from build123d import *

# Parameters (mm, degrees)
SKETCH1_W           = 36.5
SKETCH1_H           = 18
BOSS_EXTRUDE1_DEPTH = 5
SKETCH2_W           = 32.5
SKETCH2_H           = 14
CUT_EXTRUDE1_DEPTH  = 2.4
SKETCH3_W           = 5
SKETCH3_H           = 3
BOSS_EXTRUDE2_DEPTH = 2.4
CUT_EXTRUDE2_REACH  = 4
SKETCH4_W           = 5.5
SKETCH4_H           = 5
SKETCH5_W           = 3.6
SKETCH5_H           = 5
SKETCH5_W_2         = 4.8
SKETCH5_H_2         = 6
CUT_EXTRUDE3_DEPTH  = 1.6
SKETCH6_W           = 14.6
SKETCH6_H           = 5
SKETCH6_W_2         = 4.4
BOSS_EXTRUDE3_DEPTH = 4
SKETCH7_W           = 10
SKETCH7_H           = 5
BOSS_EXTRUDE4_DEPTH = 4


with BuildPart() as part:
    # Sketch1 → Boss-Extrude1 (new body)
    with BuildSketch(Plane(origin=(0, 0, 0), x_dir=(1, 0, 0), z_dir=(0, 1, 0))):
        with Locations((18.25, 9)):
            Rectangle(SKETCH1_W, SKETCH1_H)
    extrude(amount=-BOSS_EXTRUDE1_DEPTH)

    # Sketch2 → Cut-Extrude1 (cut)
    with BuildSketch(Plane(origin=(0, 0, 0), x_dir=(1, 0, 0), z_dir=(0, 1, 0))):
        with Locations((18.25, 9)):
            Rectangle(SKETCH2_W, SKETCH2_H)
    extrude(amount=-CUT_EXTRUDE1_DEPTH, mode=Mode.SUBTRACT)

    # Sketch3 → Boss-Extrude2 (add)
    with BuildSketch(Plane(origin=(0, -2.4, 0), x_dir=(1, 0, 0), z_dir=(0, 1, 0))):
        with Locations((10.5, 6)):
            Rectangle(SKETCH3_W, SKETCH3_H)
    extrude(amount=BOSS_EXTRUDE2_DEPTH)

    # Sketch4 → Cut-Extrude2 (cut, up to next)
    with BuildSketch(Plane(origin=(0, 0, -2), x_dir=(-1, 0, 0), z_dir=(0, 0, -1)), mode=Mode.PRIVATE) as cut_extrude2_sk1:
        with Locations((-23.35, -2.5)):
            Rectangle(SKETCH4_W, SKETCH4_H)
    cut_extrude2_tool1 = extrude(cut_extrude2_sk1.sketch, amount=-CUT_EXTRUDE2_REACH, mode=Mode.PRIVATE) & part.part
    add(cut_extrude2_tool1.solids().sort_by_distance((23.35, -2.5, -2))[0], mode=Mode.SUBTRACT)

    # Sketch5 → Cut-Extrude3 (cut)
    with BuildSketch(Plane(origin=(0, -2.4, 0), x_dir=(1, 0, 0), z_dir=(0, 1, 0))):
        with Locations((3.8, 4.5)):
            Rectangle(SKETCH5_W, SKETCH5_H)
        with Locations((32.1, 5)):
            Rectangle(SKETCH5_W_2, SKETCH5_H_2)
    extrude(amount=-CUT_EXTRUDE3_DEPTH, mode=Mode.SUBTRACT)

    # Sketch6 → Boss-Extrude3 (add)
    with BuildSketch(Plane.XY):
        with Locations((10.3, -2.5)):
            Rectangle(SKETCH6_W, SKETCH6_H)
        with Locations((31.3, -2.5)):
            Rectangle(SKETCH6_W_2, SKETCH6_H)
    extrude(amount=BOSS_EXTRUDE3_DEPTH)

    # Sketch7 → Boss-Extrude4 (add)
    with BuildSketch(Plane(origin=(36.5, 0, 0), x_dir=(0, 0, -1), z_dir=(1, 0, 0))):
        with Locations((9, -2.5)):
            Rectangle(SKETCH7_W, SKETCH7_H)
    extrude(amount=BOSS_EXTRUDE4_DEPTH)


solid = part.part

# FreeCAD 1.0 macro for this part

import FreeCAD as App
import Part
import Sketcher

V = App.Vector
Q = App.Units.Quantity


def add_polygon(sketch, points):
    """Adds a closed chain of lines whose ends are joined by coincident constraints."""
    first, n = sketch.GeometryCount, len(points)
    for a, b in zip(points, points[1:] + points[:1]):
        sketch.addGeometry(Part.LineSegment(App.Vector(*a, 0), App.Vector(*b, 0)), False)
    for i in range(n):
        sketch.addConstraint(Sketcher.Constraint("Coincident", first + i, 2, first + (i + 1) % n, 1))

doc = App.newDocument("Part")
body = doc.addObject("PartDesign::Body", "Body")

# Sketch on XZ plane
sketch1 = body.newObject("Sketcher::SketchObject", "Sketch")
sketch1.AttachmentSupport = (doc.getObject("XZ_Plane"), [""])
sketch1.MapMode = "FlatFace"
add_polygon(sketch1, [(0, -18), (0, 0), (36.5, 0), (36.5, -18)])  # lines 0-3
sketch1.addConstraint([
    Sketcher.Constraint("Vertical", 0),
    Sketcher.Constraint("Horizontal", 1),
    Sketcher.Constraint("Vertical", 2),
    Sketcher.Constraint("Horizontal", 3),
    Sketcher.Constraint("Coincident", 0, 2, -1, 1),
    Sketcher.Constraint("DistanceY", 0, 1, 0, 2, Q("18 mm")),
    Sketcher.Constraint("DistanceX", 1, 1, 1, 2, Q("36.5 mm")),
])
pad1 = body.newObject("PartDesign::Pad", "Pad")
pad1.Profile = sketch1
pad1.Length = 5

# Sketch on XZ plane
sketch2 = body.newObject("Sketcher::SketchObject", "Sketch001")
sketch2.AttachmentSupport = (doc.getObject("XZ_Plane"), [""])
sketch2.MapMode = "FlatFace"
add_polygon(sketch2, [(2, -16), (2, -2), (34.5, -2), (34.5, -16)])  # lines 0-3
sketch2.addConstraint([
    Sketcher.Constraint("Vertical", 0),
    Sketcher.Constraint("Horizontal", 1),
    Sketcher.Constraint("Vertical", 2),
    Sketcher.Constraint("Horizontal", 3),
    Sketcher.Constraint("DistanceY", 0, 1, 0, 2, Q("14 mm")),
    Sketcher.Constraint("DistanceX", 1, 1, 1, 2, Q("32.5 mm")),
    Sketcher.Constraint("DistanceX", -1, 1, 0, 2, Q("2 mm")),
    Sketcher.Constraint("DistanceY", 0, 2, -1, 1, Q("2 mm")),
])
pocket1 = body.newObject("PartDesign::Pocket", "Pocket")
pocket1.Profile = sketch2
pocket1.Length = 2.4
pocket1.Reversed = True

# Sketch on XZ plane
sketch3 = body.newObject("Sketcher::SketchObject", "Sketch002")
sketch3.AttachmentSupport = (doc.getObject("XZ_Plane"), [""])
sketch3.MapMode = "FlatFace"
sketch3.AttachmentOffset = App.Placement(V(0, 0, 2.4), App.Rotation())
add_polygon(sketch3, [(8, -7.5), (8, -4.5), (13, -4.5), (13, -7.5)])  # lines 0-3
sketch3.addConstraint([
    Sketcher.Constraint("Vertical", 0),
    Sketcher.Constraint("Horizontal", 1),
    Sketcher.Constraint("Vertical", 2),
    Sketcher.Constraint("Horizontal", 3),
    Sketcher.Constraint("DistanceX", 1, 1, 1, 2, Q("5 mm")),
    Sketcher.Constraint("DistanceY", 0, 1, 0, 2, Q("3 mm")),
    Sketcher.Constraint("DistanceX", -1, 1, 0, 2, Q("8 mm")),
    Sketcher.Constraint("DistanceY", 0, 2, -1, 1, Q("4.5 mm")),
])
pad2 = body.newObject("PartDesign::Pad", "Pad001")
pad2.Profile = sketch3
pad2.Length = 2.4
pad2.Reversed = True

# Sketch on XY plane
sketch4 = body.newObject("Sketcher::SketchObject", "Sketch003")
sketch4.AttachmentSupport = (doc.getObject("XY_Plane"), [""])
sketch4.MapMode = "FlatFace"
sketch4.AttachmentOffset = App.Placement(V(0, 0, -2), App.Rotation())
add_polygon(sketch4, [(26.1, 0), (26.1, -5), (20.6, -5), (20.6, 0)])  # lines 0-3
sketch4.addConstraint([
    Sketcher.Constraint("Vertical", 0),
    Sketcher.Constraint("Horizontal", 1),
    Sketcher.Constraint("Vertical", 2),
    Sketcher.Constraint("Horizontal", 3),
    Sketcher.Constraint("PointOnObject", 2, 2, -1),
    Sketcher.Constraint("DistanceY", 0, 2, 0, 1, Q("5 mm")),
    Sketcher.Constraint("DistanceX", 1, 2, 1, 1, Q("5.5 mm")),
    Sketcher.Constraint("DistanceX", -1, 1, 0, 2, Q("26.1 mm")),
])
pocket2 = body.newObject("PartDesign::Pocket", "Pocket001")
pocket2.Profile = sketch4
pocket2.Type = "UpToFirst"
pocket2.Reversed = True

# Sketch on XZ plane
sketch5 = body.newObject("Sketcher::SketchObject", "Sketch004")
sketch5.AttachmentSupport = (doc.getObject("XZ_Plane"), [""])
sketch5.MapMode = "FlatFace"
sketch5.AttachmentOffset = App.Placement(V(0, 0, 2.4), App.Rotation())
add_polygon(sketch5, [(2, -7), (2, -2), (5.6, -2), (5.6, -7)])  # lines 0-3
add_polygon(sketch5, [(29.7, -8), (29.7, -2), (34.5, -2), (34.5, -8)])  # lines 4-7
sketch5.addConstraint([
    Sketcher.Constraint("Vertical", 0),
    Sketcher.Constraint("Horizontal", 1),
    Sketcher.Constraint("Vertical", 2),
    Sketcher.Constraint("Horizontal", 3),
    Sketcher.Constraint("Vertical", 4),
    Sketcher.Constraint("Horizontal", 5),
    Sketcher.Constraint("Vertical", 6),
    Sketcher.Constraint("Horizontal", 7),
    Sketcher.Constraint("Horizontal", 1, 2, 4, 2),
    Sketcher.Constraint("DistanceY", 0, 1, 0, 2, Q("5 mm")),
    Sketcher.Constraint("DistanceY", 4, 1, 4, 2, Q("6 mm")),
    Sketcher.Constraint("DistanceX", 1, 1, 1, 2, Q("3.6 mm")),
    Sketcher.Constraint("DistanceX", 5, 1, 5, 2, Q("4.8 mm")),
    Sketcher.Constraint("DistanceX", -1, 1, 0, 2, Q("2 mm")),
    Sketcher.Constraint("DistanceY", 0, 2, -1, 1, Q("2 mm")),
    Sketcher.Constraint("DistanceX", -1, 1, 4, 2, Q("29.7 mm")),
])
pocket3 = body.newObject("PartDesign::Pocket", "Pocket002")
pocket3.Profile = sketch5
pocket3.Length = 1.6
pocket3.Reversed = True

# Sketch on XY plane
sketch6 = body.newObject("Sketcher::SketchObject", "Sketch005")
sketch6.AttachmentSupport = (doc.getObject("XY_Plane"), [""])
sketch6.MapMode = "FlatFace"
add_polygon(sketch6, [(3, 0), (3, -5), (17.6, -5), (17.6, 0)])  # lines 0-3
add_polygon(sketch6, [(29.1, 0), (29.1, -5), (33.5, -5), (33.5, 0)])  # lines 4-7
sketch6.addConstraint([
    Sketcher.Constraint("Vertical", 0),
    Sketcher.Constraint("Horizontal", 1),
    Sketcher.Constraint("Vertical", 2),
    Sketcher.Constraint("Horizontal", 3),
    Sketcher.Constraint("Vertical", 4),
    Sketcher.Constraint("Horizontal", 5),
    Sketcher.Constraint("Vertical", 6),
    Sketcher.Constraint("Horizontal", 7),
    Sketcher.Constraint("PointOnObject", 2, 2, -1),
    Sketcher.Constraint("PointOnObject", 6, 2, -1),
    Sketcher.Constraint("Horizontal", 1, 2, 4, 2),
    Sketcher.Constraint("DistanceY", 0, 2, 0, 1, Q("5 mm")),
    Sketcher.Constraint("DistanceX", 1, 1, 1, 2, Q("14.6 mm")),
    Sketcher.Constraint("DistanceX", 5, 1, 5, 2, Q("4.4 mm")),
    Sketcher.Constraint("DistanceX", -1, 1, 0, 2, Q("3 mm")),
    Sketcher.Constraint("DistanceX", -1, 1, 4, 2, Q("29.1 mm")),
])
pad3 = body.newObject("PartDesign::Pad", "Pad002")
pad3.Profile = sketch6
pad3.Length = 4

# Sketch on YZ plane
sketch7 = body.newObject("Sketcher::SketchObject", "Sketch006")
sketch7.AttachmentSupport = (doc.getObject("YZ_Plane"), [""])
sketch7.MapMode = "FlatFace"
sketch7.AttachmentOffset = App.Placement(V(0, 0, 36.5), App.Rotation())
add_polygon(sketch7, [(0, -4), (-5, -4), (-5, -14), (0, -14)])  # lines 0-3
sketch7.addConstraint([
    Sketcher.Constraint("Horizontal", 0),
    Sketcher.Constraint("Vertical", 1),
    Sketcher.Constraint("Horizontal", 2),
    Sketcher.Constraint("Vertical", 3),
    Sketcher.Constraint("PointOnObject", 2, 2, -2),
    Sketcher.Constraint("DistanceX", 0, 2, 0, 1, Q("5 mm")),
    Sketcher.Constraint("DistanceY", 1, 2, 1, 1, Q("10 mm")),
    Sketcher.Constraint("DistanceY", 0, 2, -1, 1, Q("4 mm")),
])
pad4 = body.newObject("PartDesign::Pad", "Pad003")
pad4.Profile = sketch7
pad4.Length = 4

doc.recompute()
